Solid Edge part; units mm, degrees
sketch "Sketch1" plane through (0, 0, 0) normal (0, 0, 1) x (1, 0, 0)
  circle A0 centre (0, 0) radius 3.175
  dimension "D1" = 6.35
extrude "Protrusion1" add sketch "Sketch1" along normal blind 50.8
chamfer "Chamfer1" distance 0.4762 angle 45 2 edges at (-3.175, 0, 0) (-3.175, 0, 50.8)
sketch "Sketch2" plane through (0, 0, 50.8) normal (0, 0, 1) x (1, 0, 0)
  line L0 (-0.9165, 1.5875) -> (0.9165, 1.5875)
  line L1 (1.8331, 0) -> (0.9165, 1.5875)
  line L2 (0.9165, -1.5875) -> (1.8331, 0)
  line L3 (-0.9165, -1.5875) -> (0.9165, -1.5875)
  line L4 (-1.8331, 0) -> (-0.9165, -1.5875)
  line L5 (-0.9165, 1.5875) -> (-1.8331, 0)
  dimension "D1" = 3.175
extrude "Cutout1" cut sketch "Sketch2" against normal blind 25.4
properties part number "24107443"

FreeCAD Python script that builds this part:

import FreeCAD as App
import Part
import Sketcher

V = App.Vector
Q = App.Units.Quantity


def edges_at(feature, points):
    """Names of the edges that pass closest to the given points."""
    edges = feature.Shape.Edges
    near = lambda p: min(range(len(edges)), key=lambda i: edges[i].distToShape(Part.Vertex(*p))[0])
    return sorted({f"Edge{near(p) + 1}" for p in points})


def add_polygon(sketch, points):
    """Adds a closed chain of lines whose ends are joined by coincident constraints."""
    first, n = sketch.GeometryCount, len(points)
    for a, b in zip(points, points[1:] + points[:1]):
        sketch.addGeometry(Part.LineSegment(App.Vector(*a, 0), App.Vector(*b, 0)), False)
    for i in range(n):
        sketch.addConstraint(Sketcher.Constraint("Coincident", first + i, 2, first + (i + 1) % n, 1))

doc = App.newDocument("Part")
body = doc.addObject("PartDesign::Body", "Body")

sketch1 = body.newObject("Sketcher::SketchObject", "Sketch")
sketch1.AttachmentSupport = (doc.getObject("XY_Plane"), [""])
sketch1.MapMode = "FlatFace"
sketch1.addGeometry(Part.Circle(V(0, 0, 0), V(0, 0, 1), 3.2), False)
sketch1.addConstraint(Sketcher.Constraint("Coincident", 0, 3, -1, 1))
sketch1.addConstraint(Sketcher.Constraint("Diameter", 0, Q("0.25 in")))
pad1 = body.newObject("PartDesign::Pad", "Pad")
pad1.Profile = sketch1
pad1.Length = Q("2 in")
doc.recompute()

chamfer = body.newObject("PartDesign::Chamfer", "Chamfer")
chamfer.Base = (pad1, edges_at(pad1, [(-3.175, 0, 0), (-3.175, 0, 50.8)]))
chamfer.Size = 0.4762

sketch2 = body.newObject("Sketcher::SketchObject", "Sketch001")
sketch2.AttachmentSupport = (doc.getObject("XY_Plane"), [""])
sketch2.MapMode = "FlatFace"
sketch2.AttachmentOffset = App.Placement(V(0, 0, 2 * 25.4), App.Rotation())
add_polygon(sketch2, [(0.9, 1.6), (-0.9, 1.6), (-1.8, 0), (-0.9, -1.6), (0.9, -1.6), (1.8, 0)])
sketch2.addConstraint(Sketcher.Constraint("Horizontal", 0))
sketch2.addConstraint(Sketcher.Constraint("Horizontal", 3))
sketch2.addConstraint(Sketcher.Constraint("Symmetric", 0, 2, 3, 2, -1, 1))
sketch2.addConstraint(Sketcher.Constraint("Symmetric", 1, 2, 4, 2, -1, 1))
sketch2.addConstraint(Sketcher.Constraint("PointOnObject", 1, 2, -1))
sketch2.addConstraint(Sketcher.Constraint("Parallel", 2, 5))
sketch2.addConstraint(Sketcher.Constraint("Vertical", 0, 2, 2, 2))
sketch2.addConstraint(Sketcher.Constraint("DistanceY", -1, 1, 0, 2, Q("0.0625 in")))
sketch2.addConstraint(Sketcher.Constraint("DistanceX", 0, 2, 0, 1, 1.833))
sketch2.addConstraint(Sketcher.Constraint("Distance", 1, 1.833))
pocket1 = body.newObject("PartDesign::Pocket", "Pocket")
pocket1.Profile = sketch2
pocket1.Length = Q("1 in")

doc.recompute()
